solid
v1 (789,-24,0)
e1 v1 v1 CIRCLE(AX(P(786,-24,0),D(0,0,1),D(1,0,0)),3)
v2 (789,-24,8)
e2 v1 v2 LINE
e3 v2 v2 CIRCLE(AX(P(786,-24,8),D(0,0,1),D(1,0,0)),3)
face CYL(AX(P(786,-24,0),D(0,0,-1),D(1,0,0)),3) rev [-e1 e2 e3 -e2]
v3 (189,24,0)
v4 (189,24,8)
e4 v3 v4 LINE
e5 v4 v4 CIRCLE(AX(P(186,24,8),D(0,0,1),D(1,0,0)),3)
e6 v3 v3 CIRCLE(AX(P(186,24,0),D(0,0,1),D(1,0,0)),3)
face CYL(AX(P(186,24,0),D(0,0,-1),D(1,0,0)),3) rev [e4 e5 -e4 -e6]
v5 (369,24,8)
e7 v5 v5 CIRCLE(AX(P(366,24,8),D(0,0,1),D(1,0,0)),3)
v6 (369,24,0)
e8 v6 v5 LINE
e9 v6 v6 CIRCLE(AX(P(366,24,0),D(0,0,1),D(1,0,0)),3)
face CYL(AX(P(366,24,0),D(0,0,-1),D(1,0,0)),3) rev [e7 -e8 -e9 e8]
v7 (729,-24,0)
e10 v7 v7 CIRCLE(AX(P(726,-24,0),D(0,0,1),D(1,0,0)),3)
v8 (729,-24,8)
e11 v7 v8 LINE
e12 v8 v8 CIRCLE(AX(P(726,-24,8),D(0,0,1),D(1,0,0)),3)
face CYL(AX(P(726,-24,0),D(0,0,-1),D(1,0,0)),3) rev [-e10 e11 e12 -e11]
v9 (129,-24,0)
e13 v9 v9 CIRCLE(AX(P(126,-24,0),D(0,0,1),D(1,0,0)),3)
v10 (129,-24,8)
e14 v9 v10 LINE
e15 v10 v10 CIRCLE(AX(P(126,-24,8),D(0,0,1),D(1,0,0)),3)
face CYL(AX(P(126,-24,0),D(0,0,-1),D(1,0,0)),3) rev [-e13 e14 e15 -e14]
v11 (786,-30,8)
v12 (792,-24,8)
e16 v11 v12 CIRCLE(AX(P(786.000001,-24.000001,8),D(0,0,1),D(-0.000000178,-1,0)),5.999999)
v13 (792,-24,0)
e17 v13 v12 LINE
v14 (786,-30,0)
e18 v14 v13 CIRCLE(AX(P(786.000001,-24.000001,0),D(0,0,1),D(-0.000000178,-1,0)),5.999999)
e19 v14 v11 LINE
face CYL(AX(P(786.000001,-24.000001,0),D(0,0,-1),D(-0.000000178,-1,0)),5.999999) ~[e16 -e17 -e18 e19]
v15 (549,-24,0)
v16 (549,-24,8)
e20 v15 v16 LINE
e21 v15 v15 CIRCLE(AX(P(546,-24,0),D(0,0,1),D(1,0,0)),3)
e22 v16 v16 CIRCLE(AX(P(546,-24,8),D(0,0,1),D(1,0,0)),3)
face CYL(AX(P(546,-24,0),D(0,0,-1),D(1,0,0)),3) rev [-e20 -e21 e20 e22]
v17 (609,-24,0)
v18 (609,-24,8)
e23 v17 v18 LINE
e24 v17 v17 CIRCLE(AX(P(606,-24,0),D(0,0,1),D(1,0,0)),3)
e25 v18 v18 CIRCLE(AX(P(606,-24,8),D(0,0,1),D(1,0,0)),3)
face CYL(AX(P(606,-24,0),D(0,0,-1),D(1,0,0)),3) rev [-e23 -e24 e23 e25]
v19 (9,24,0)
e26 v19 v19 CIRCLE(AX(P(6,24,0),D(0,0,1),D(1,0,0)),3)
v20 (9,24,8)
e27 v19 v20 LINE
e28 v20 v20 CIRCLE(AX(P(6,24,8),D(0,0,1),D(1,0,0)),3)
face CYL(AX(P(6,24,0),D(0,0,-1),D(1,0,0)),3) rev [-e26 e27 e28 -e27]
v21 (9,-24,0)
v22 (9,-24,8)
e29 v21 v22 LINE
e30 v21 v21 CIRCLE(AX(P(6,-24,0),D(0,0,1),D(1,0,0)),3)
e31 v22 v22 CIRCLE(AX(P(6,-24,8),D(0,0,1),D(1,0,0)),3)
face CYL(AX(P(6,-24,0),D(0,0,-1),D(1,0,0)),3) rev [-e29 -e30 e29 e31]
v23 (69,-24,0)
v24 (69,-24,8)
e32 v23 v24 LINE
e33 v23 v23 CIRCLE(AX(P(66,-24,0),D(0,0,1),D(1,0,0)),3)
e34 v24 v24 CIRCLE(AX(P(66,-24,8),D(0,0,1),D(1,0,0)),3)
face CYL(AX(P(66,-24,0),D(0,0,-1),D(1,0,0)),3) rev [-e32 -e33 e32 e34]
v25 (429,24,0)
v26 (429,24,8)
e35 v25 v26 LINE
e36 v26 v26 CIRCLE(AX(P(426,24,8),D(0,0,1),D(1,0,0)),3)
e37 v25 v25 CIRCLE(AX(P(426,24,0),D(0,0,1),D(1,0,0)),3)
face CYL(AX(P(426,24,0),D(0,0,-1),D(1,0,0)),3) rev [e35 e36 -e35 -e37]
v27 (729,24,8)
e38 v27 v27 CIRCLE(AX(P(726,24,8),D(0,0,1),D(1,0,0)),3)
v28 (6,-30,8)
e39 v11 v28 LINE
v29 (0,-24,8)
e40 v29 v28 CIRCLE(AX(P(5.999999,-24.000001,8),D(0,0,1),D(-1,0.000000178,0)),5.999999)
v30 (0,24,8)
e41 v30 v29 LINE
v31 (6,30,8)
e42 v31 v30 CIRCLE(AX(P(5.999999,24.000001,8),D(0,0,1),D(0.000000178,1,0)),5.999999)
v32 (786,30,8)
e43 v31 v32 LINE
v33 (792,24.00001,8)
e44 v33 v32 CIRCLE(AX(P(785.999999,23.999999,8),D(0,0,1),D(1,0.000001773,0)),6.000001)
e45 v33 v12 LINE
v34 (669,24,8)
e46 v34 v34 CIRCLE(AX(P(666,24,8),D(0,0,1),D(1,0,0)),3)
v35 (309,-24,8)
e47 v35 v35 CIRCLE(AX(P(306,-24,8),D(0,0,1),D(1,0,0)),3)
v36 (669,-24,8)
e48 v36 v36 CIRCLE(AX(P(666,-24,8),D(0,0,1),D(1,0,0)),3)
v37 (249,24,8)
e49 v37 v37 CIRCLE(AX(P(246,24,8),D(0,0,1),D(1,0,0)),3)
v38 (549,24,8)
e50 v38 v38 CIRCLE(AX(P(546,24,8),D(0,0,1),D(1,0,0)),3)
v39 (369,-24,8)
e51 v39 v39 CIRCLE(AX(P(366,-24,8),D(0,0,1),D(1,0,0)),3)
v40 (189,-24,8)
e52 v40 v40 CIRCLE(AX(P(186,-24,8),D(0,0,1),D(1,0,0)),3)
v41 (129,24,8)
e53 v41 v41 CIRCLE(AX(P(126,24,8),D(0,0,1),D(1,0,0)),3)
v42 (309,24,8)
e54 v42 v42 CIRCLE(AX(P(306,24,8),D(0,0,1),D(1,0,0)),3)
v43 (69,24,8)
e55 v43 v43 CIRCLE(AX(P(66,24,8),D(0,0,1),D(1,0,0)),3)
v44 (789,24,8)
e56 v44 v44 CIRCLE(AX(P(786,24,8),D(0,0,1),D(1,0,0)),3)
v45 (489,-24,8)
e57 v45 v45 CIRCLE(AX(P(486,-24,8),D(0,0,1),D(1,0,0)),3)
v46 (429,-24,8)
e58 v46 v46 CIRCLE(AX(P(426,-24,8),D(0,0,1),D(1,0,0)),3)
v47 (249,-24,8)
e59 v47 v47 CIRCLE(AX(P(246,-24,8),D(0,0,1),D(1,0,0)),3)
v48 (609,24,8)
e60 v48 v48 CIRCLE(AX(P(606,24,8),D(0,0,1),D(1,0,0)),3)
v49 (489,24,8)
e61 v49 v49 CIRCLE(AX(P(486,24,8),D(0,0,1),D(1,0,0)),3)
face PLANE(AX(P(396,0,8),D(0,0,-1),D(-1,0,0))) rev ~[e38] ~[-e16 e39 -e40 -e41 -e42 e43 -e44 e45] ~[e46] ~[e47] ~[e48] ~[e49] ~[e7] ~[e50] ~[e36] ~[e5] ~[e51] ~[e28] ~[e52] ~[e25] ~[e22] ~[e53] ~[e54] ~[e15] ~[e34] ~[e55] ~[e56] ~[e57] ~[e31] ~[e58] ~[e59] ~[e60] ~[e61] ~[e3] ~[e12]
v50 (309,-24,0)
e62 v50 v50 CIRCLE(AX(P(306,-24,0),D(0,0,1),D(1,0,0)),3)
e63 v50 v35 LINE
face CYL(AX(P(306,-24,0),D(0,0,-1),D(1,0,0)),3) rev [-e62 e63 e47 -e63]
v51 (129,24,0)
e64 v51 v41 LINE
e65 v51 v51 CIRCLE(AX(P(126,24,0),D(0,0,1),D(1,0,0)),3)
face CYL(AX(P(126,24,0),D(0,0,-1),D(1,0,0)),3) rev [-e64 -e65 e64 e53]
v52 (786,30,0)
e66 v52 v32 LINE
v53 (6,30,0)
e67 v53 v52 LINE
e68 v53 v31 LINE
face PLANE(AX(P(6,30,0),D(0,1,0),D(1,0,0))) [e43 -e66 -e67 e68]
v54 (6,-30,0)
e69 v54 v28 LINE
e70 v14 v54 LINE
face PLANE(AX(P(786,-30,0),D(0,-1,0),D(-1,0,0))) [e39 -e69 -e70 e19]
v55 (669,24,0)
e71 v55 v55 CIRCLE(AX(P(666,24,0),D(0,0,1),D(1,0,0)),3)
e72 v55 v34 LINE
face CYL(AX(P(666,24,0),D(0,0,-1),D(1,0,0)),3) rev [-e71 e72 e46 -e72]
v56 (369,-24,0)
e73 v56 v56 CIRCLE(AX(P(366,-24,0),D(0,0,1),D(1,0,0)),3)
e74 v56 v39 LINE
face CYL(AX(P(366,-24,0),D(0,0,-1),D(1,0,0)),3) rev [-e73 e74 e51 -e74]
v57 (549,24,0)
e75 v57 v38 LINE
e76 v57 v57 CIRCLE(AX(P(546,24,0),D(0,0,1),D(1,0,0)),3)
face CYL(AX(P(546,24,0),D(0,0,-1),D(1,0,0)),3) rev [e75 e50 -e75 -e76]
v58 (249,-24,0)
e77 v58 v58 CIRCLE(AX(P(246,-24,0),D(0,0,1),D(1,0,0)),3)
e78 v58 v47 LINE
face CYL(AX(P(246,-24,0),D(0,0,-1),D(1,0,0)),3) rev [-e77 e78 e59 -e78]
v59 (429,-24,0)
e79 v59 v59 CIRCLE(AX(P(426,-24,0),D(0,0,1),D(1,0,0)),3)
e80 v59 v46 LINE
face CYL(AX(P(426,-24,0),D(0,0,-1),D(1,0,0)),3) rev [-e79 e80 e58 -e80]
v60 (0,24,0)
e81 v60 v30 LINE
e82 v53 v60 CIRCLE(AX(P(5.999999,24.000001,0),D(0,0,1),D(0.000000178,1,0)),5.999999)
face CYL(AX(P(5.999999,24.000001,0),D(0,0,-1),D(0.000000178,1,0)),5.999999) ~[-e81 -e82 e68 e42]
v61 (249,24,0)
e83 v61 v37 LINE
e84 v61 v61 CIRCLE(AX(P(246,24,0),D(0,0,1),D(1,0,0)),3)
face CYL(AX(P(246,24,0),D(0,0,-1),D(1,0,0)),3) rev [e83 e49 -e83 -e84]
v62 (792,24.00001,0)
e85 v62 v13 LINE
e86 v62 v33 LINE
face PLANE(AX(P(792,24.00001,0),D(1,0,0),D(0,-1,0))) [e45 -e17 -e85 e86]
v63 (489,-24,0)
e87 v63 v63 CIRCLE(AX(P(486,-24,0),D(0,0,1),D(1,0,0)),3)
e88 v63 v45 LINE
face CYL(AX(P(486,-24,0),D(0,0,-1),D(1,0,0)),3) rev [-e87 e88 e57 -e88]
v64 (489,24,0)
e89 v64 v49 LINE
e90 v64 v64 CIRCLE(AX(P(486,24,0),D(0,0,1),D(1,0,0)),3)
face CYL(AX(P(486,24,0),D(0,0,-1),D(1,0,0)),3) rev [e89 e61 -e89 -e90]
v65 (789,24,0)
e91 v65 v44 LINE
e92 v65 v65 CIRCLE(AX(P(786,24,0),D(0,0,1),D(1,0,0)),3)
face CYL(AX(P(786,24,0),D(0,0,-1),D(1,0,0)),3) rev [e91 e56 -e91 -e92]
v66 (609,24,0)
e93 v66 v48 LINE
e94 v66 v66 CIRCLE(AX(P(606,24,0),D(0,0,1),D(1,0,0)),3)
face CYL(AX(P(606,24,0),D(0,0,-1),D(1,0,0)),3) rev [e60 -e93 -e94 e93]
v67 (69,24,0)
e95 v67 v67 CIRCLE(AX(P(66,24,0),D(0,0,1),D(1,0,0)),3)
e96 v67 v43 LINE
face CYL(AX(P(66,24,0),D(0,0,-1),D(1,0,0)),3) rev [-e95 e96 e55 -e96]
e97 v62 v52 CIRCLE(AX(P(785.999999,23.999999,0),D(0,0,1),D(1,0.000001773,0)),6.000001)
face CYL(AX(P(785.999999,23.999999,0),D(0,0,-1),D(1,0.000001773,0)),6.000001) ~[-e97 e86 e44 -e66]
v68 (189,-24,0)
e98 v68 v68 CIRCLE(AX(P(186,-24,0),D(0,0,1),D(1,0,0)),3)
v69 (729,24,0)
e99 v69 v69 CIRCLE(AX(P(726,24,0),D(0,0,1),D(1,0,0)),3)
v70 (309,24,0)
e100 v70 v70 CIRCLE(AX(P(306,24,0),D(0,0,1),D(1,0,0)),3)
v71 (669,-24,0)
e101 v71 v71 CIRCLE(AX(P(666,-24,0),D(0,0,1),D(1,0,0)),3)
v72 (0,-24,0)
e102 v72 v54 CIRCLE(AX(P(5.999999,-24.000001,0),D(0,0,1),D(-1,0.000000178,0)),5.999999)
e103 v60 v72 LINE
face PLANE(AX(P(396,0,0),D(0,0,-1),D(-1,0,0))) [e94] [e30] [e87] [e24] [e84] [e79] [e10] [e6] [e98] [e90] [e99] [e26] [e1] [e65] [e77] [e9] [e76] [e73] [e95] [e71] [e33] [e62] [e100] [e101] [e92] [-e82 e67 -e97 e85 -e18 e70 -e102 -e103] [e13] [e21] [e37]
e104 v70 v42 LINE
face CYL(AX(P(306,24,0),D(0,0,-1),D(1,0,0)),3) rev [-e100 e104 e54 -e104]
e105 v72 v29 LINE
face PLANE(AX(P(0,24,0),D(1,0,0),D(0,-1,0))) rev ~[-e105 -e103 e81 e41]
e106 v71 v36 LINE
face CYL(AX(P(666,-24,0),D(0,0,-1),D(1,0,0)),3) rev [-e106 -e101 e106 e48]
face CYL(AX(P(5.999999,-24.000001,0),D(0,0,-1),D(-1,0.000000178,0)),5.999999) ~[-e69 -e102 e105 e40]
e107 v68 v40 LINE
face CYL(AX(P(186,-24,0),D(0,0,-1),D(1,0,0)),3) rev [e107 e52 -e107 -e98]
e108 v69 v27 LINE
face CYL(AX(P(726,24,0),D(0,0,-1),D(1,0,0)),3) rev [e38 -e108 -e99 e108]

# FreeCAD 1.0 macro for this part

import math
import FreeCAD as App
import Part
import Sketcher

V = App.Vector

doc = App.newDocument("Part")
body = doc.addObject("PartDesign::Body", "Body")

# Sketch on XY plane
sketch1 = doc.addObject("Sketcher::SketchObject", "Sketch")
body.addObject(sketch1)
sketch1.AttachmentSupport = (doc.XY_Plane, [""])
sketch1.MapMode = "FlatFace"
sketch1.addGeometry([
    Part.LineSegment(V(0, 24, 0), V(0, -24, 0)),  # 0
    Part.ArcOfCircle(Part.Circle(V(6, -24, 0), V(0, 0, 1), 6), math.radians(180), math.radians(270)),  # 1
    Part.LineSegment(V(6, -30, 0), V(786, -30, 0)),  # 2
    Part.ArcOfCircle(Part.Circle(V(786, -24, 0), V(0, 0, 1), 6), math.radians(-90), math.radians(0)),  # 3
    Part.LineSegment(V(792, -24, 0), V(792, 24, 0)),  # 4
    Part.ArcOfCircle(Part.Circle(V(786, 24, 0), V(0, 0, 1), 6), math.radians(0), math.radians(90)),  # 5
    Part.LineSegment(V(786, 30, 0), V(6, 30, 0)),  # 6
    Part.ArcOfCircle(Part.Circle(V(6, 24, 0), V(0, 0, 1), 6), math.radians(90), math.radians(180)),  # 7
    Part.Circle(V(786, -24, 0), V(0, 0, 1), 3),  # 8
    Part.Circle(V(726, -24, 0), V(0, 0, 1), 3),  # 9
    Part.Circle(V(666, -24, 0), V(0, 0, 1), 3),  # 10
    Part.Circle(V(606, -24, 0), V(0, 0, 1), 3),  # 11
    Part.Circle(V(546, -24, 0), V(0, 0, 1), 3),  # 12
    Part.Circle(V(486, -24, 0), V(0, 0, 1), 3),  # 13
    Part.Circle(V(426, -24, 0), V(0, 0, 1), 3),  # 14
    Part.Circle(V(366, -24, 0), V(0, 0, 1), 3),  # 15
    Part.Circle(V(306, -24, 0), V(0, 0, 1), 3),  # 16
    Part.Circle(V(246, -24, 0), V(0, 0, 1), 3),  # 17
    Part.Circle(V(186, -24, 0), V(0, 0, 1), 3),  # 18
    Part.Circle(V(126, -24, 0), V(0, 0, 1), 3),  # 19
    Part.Circle(V(66, -24, 0), V(0, 0, 1), 3),  # 20
    Part.Circle(V(6, -24, 0), V(0, 0, 1), 3),  # 21
    Part.Circle(V(786, 24, 0), V(0, 0, 1), 3),  # 22
    Part.Circle(V(726, 24, 0), V(0, 0, 1), 3),  # 23
    Part.Circle(V(666, 24, 0), V(0, 0, 1), 3),  # 24
    Part.Circle(V(606, 24, 0), V(0, 0, 1), 3),  # 25
    Part.Circle(V(546, 24, 0), V(0, 0, 1), 3),  # 26
    Part.Circle(V(486, 24, 0), V(0, 0, 1), 3),  # 27
    Part.Circle(V(426, 24, 0), V(0, 0, 1), 3),  # 28
    Part.Circle(V(366, 24, 0), V(0, 0, 1), 3),  # 29
    Part.Circle(V(306, 24, 0), V(0, 0, 1), 3),  # 30
    Part.Circle(V(246, 24, 0), V(0, 0, 1), 3),  # 31
    Part.Circle(V(186, 24, 0), V(0, 0, 1), 3),  # 32
    Part.Circle(V(126, 24, 0), V(0, 0, 1), 3),  # 33
    Part.Circle(V(66, 24, 0), V(0, 0, 1), 3),  # 34
    Part.Circle(V(6, 24, 0), V(0, 0, 1), 3),  # 35
], False)
sketch1.addConstraint([
    Sketcher.Constraint("Tangent", 0, 2, 1, 1),
    Sketcher.Constraint("Tangent", 1, 2, 2, 1),
    Sketcher.Constraint("Tangent", 2, 2, 3, 1),
    Sketcher.Constraint("Tangent", 3, 2, 4, 1),
    Sketcher.Constraint("Tangent", 4, 2, 5, 1),
    Sketcher.Constraint("Tangent", 5, 2, 6, 1),
    Sketcher.Constraint("Tangent", 6, 2, 7, 1),
    Sketcher.Constraint("Tangent", 7, 2, 0, 1),
    Sketcher.Constraint("Vertical", 0),
    Sketcher.Constraint("Horizontal", 2),
    Sketcher.Constraint("Vertical", 4),
    Sketcher.Constraint("Horizontal", 6),
    Sketcher.Constraint("Coincident", 8, 3, 3, 3),
    Sketcher.Constraint("Coincident", 21, 3, 1, 3),
    Sketcher.Constraint("Coincident", 22, 3, 5, 3),
    Sketcher.Constraint("Coincident", 35, 3, 7, 3),
    Sketcher.Constraint("Equal", 1, 3),
    Sketcher.Constraint("Equal", 3, 5),
    Sketcher.Constraint("Equal", 5, 7),
    Sketcher.Constraint("Equal", 8, 9),
    Sketcher.Constraint("Equal", 9, 10),
    Sketcher.Constraint("Equal", 10, 11),
    Sketcher.Constraint("Equal", 11, 12),
    Sketcher.Constraint("Equal", 12, 13),
    Sketcher.Constraint("Equal", 13, 14),
    Sketcher.Constraint("Equal", 14, 15),
    Sketcher.Constraint("Equal", 15, 16),
    Sketcher.Constraint("Equal", 16, 17),
    Sketcher.Constraint("Equal", 17, 18),
    Sketcher.Constraint("Equal", 18, 19),
    Sketcher.Constraint("Equal", 19, 20),
    Sketcher.Constraint("Equal", 20, 21),
    Sketcher.Constraint("Equal", 21, 22),
    Sketcher.Constraint("Equal", 22, 23),
    Sketcher.Constraint("Equal", 23, 24),
    Sketcher.Constraint("Equal", 24, 25),
    Sketcher.Constraint("Equal", 25, 26),
    Sketcher.Constraint("Equal", 26, 27),
    Sketcher.Constraint("Equal", 27, 28),
    Sketcher.Constraint("Equal", 28, 29),
    Sketcher.Constraint("Equal", 29, 30),
    Sketcher.Constraint("Equal", 30, 31),
    Sketcher.Constraint("Equal", 31, 32),
    Sketcher.Constraint("Equal", 32, 33),
    Sketcher.Constraint("Equal", 33, 34),
    Sketcher.Constraint("Equal", 34, 35),
    Sketcher.Constraint("Symmetric", 0, 2, 7, 2, -1, 1),
    Sketcher.Constraint("Symmetric", 9, 3, 23, 3, -1),
    Sketcher.Constraint("Symmetric", 10, 3, 24, 3, -1),
    Sketcher.Constraint("Symmetric", 11, 3, 25, 3, -1),
    Sketcher.Constraint("Symmetric", 12, 3, 26, 3, -1),
    Sketcher.Constraint("Symmetric", 13, 3, 27, 3, -1),
    Sketcher.Constraint("Symmetric", 14, 3, 28, 3, -1),
    Sketcher.Constraint("Symmetric", 15, 3, 29, 3, -1),
    Sketcher.Constraint("Symmetric", 16, 3, 30, 3, -1),
    Sketcher.Constraint("Symmetric", 17, 3, 31, 3, -1),
    Sketcher.Constraint("Symmetric", 18, 3, 32, 3, -1),
    Sketcher.Constraint("Symmetric", 19, 3, 33, 3, -1),
    Sketcher.Constraint("Symmetric", 20, 3, 34, 3, -1),
    Sketcher.Constraint("Horizontal", 8, 3, 9, 3),
    Sketcher.Constraint("Horizontal", 9, 3, 10, 3),
    Sketcher.Constraint("Horizontal", 10, 3, 11, 3),
    Sketcher.Constraint("Horizontal", 11, 3, 12, 3),
    Sketcher.Constraint("Horizontal", 12, 3, 13, 3),
    Sketcher.Constraint("Horizontal", 13, 3, 14, 3),
    Sketcher.Constraint("Horizontal", 14, 3, 15, 3),
    Sketcher.Constraint("Horizontal", 15, 3, 16, 3),
    Sketcher.Constraint("Horizontal", 16, 3, 17, 3),
    Sketcher.Constraint("Horizontal", 17, 3, 18, 3),
    Sketcher.Constraint("Horizontal", 18, 3, 19, 3),
    Sketcher.Constraint("Horizontal", 19, 3, 20, 3),
    Sketcher.Constraint("Diameter", 8, 6.0),
    Sketcher.Constraint("Radius", 1, 5.999999),
    Sketcher.Constraint("DistanceX", 2, 1, 2, 2, 780.0),
    Sketcher.Constraint("DistanceY", 0, 2, 0, 1, 48.0),
    Sketcher.Constraint("DistanceX", -1, 1, 9, 3, 726.0),
    Sketcher.Constraint("DistanceX", -1, 1, 10, 3, 666.0),
    Sketcher.Constraint("DistanceX", -1, 1, 11, 3, 606.0),
    Sketcher.Constraint("DistanceX", -1, 1, 12, 3, 546.0),
    Sketcher.Constraint("DistanceX", -1, 1, 13, 3, 486.0),
    Sketcher.Constraint("DistanceX", -1, 1, 14, 3, 426.0),
    Sketcher.Constraint("DistanceX", -1, 1, 15, 3, 366.0),
    Sketcher.Constraint("DistanceX", -1, 1, 16, 3, 306.0),
    Sketcher.Constraint("DistanceX", -1, 1, 17, 3, 246.0),
    Sketcher.Constraint("DistanceX", -1, 1, 18, 3, 186.0),
    Sketcher.Constraint("DistanceX", -1, 1, 19, 3, 126.0),
    Sketcher.Constraint("DistanceX", -1, 1, 20, 3, 66.0),
])
pad1 = doc.addObject("PartDesign::Pad", "Pad")
body.addObject(pad1)
pad1.Profile = sketch1
pad1.Length = 8

doc.recompute()
